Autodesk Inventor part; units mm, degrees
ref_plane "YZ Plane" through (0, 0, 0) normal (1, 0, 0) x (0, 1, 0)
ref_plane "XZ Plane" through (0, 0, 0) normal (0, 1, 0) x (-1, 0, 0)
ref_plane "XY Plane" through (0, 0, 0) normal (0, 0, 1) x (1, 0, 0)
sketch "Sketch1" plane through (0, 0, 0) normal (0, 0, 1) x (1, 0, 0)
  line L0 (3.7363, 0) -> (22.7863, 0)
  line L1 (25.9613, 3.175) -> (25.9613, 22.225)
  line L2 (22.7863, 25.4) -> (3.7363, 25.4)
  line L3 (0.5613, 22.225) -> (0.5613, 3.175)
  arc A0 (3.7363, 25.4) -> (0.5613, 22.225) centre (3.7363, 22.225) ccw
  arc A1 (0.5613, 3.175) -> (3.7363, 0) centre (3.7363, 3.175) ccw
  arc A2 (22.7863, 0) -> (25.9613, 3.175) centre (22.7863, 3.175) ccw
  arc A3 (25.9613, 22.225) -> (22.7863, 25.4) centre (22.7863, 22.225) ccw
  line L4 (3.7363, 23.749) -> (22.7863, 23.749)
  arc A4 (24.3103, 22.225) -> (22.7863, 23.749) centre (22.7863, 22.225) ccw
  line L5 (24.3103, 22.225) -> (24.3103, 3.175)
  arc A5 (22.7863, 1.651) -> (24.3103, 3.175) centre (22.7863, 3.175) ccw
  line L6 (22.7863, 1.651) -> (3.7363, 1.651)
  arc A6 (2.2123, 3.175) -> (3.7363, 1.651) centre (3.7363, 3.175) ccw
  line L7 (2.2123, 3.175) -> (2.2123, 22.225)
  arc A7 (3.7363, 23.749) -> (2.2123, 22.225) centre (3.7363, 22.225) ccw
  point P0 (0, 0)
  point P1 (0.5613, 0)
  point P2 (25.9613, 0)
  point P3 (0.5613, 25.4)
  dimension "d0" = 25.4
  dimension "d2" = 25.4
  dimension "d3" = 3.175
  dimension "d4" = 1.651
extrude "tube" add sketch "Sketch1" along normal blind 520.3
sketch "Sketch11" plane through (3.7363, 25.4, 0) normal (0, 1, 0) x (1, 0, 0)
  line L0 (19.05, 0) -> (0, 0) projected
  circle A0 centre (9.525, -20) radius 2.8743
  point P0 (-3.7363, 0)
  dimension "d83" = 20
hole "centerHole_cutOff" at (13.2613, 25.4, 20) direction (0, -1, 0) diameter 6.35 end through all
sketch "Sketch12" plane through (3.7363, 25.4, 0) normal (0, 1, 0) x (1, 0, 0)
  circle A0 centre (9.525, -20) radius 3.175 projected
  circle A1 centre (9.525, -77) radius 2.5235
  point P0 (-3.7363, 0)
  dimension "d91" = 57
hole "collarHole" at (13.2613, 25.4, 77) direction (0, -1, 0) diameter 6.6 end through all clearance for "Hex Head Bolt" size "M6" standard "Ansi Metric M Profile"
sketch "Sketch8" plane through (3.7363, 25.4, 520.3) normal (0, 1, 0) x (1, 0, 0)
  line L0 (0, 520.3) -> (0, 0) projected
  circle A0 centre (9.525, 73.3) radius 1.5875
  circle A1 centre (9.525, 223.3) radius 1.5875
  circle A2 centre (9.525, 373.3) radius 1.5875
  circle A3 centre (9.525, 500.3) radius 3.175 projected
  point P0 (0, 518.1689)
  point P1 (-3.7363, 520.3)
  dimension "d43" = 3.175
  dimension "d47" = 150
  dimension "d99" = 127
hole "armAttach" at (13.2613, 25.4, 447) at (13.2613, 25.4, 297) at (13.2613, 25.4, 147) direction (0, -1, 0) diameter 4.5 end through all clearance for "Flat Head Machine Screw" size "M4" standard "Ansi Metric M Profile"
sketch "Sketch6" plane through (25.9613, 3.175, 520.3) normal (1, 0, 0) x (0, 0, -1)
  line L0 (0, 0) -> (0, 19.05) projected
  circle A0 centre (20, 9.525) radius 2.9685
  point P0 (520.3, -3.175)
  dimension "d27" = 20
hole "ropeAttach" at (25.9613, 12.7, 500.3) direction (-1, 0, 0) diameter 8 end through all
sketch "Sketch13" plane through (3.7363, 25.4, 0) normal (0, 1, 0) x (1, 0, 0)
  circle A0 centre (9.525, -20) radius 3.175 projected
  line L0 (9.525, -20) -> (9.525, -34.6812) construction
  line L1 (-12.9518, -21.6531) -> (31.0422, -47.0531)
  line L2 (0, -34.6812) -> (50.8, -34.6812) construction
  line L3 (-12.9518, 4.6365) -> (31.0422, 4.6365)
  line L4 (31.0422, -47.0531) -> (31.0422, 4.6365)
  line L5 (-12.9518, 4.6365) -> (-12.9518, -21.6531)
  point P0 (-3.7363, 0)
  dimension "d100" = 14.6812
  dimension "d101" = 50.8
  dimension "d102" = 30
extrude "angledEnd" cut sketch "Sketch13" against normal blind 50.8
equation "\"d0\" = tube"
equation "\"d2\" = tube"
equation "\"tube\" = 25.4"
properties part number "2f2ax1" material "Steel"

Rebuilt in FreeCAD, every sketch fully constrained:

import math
import FreeCAD as App
import Part
import Sketcher

V = App.Vector
Q = App.Units.Quantity


def add_polygon(sketch, points):
    """Adds a closed chain of lines whose ends are joined by coincident constraints."""
    first, n = sketch.GeometryCount, len(points)
    for a, b in zip(points, points[1:] + points[:1]):
        sketch.addGeometry(Part.LineSegment(App.Vector(*a, 0), App.Vector(*b, 0)), False)
    for i in range(n):
        sketch.addConstraint(Sketcher.Constraint("Coincident", first + i, 2, first + (i + 1) % n, 1))

doc = App.newDocument("Part")
body = doc.addObject("PartDesign::Body", "Body")

# Sketch on XY plane
sketch1 = doc.addObject("Sketcher::SketchObject", "Sketch")
body.addObject(sketch1)
sketch1.AttachmentSupport = (doc.XY_Plane, [""])
sketch1.MapMode = "FlatFace"
sketch1.addGeometry([
    Part.ArcOfCircle(Part.Circle(V(3.7363, 3.175, 0), V(0, 0, 1), 3.175), math.radians(180), math.radians(270)),  # 0
    Part.LineSegment(V(3.7363, 0, 0), V(22.7863, 0, 0)),  # 1
    Part.ArcOfCircle(Part.Circle(V(22.7863, 3.175, 0), V(0, 0, 1), 3.175), math.radians(-90), math.radians(0)),  # 2
    Part.LineSegment(V(25.9613, 3.175, 0), V(25.9613, 22.225, 0)),  # 3
    Part.ArcOfCircle(Part.Circle(V(22.7863, 22.225, 0), V(0, 0, 1), 3.175), math.radians(0), math.radians(90)),  # 4
    Part.LineSegment(V(22.7863, 25.4, 0), V(3.7363, 25.4, 0)),  # 5
    Part.ArcOfCircle(Part.Circle(V(3.7363, 22.225, 0), V(0, 0, 1), 3.175), math.radians(90), math.radians(180)),  # 6
    Part.LineSegment(V(0.5613, 22.225, 0), V(0.5613, 3.175, 0)),  # 7
    Part.ArcOfCircle(Part.Circle(V(3.7363, 22.225, 0), V(0, 0, 1), 1.524), math.radians(90), math.radians(180)),  # 8
    Part.LineSegment(V(3.7363, 23.749, 0), V(22.7863, 23.749, 0)),  # 9
    Part.ArcOfCircle(Part.Circle(V(22.7863, 22.225, 0), V(0, 0, 1), 1.524), math.radians(0), math.radians(90)),  # 10
    Part.LineSegment(V(24.3103, 22.225, 0), V(24.3103, 3.175, 0)),  # 11
    Part.ArcOfCircle(Part.Circle(V(22.7863, 3.175, 0), V(0, 0, 1), 1.524), math.radians(-90), math.radians(0)),  # 12
    Part.LineSegment(V(22.7863, 1.651, 0), V(3.7363, 1.651, 0)),  # 13
    Part.ArcOfCircle(Part.Circle(V(3.7363, 3.175, 0), V(0, 0, 1), 1.524), math.radians(180), math.radians(270)),  # 14
    Part.LineSegment(V(2.2123, 3.175, 0), V(2.2123, 22.225, 0)),  # 15
], False)
sketch1.addConstraint([
    Sketcher.Constraint("Tangent", 0, 2, 1, 1),
    Sketcher.Constraint("Tangent", 1, 2, 2, 1),
    Sketcher.Constraint("Tangent", 2, 2, 3, 1),
    Sketcher.Constraint("Tangent", 3, 2, 4, 1),
    Sketcher.Constraint("Tangent", 4, 2, 5, 1),
    Sketcher.Constraint("Tangent", 5, 2, 6, 1),
    Sketcher.Constraint("Tangent", 6, 2, 7, 1),
    Sketcher.Constraint("Tangent", 7, 2, 0, 1),
    Sketcher.Constraint("Tangent", 8, 1, 9, 1),
    Sketcher.Constraint("Tangent", 9, 2, 10, 2),
    Sketcher.Constraint("Tangent", 10, 1, 11, 1),
    Sketcher.Constraint("Tangent", 11, 2, 12, 2),
    Sketcher.Constraint("Tangent", 12, 1, 13, 1),
    Sketcher.Constraint("Tangent", 13, 2, 14, 2),
    Sketcher.Constraint("Tangent", 14, 1, 15, 1),
    Sketcher.Constraint("Tangent", 15, 2, 8, 2),
    Sketcher.Constraint("Horizontal", 1),
    Sketcher.Constraint("Vertical", 3),
    Sketcher.Constraint("Horizontal", 5),
    Sketcher.Constraint("Vertical", 7),
    Sketcher.Constraint("Horizontal", 9),
    Sketcher.Constraint("Vertical", 11),
    Sketcher.Constraint("Horizontal", 13),
    Sketcher.Constraint("Vertical", 15),
    Sketcher.Constraint("Coincident", 8, 3, 6, 3),
    Sketcher.Constraint("Coincident", 10, 3, 4, 3),
    Sketcher.Constraint("Coincident", 12, 3, 2, 3),
    Sketcher.Constraint("Equal", 0, 2),
    Sketcher.Constraint("Equal", 2, 4),
    Sketcher.Constraint("Equal", 4, 6),
    Sketcher.Constraint("Equal", 12, 14),
    Sketcher.Constraint("PointOnObject", 0, 2, -1),
    Sketcher.Constraint("Equal", 13, 3),
    Sketcher.Constraint("DistanceY", -1, 1, 4, 2, Q("1 in")),
    Sketcher.Constraint("Radius", 0, Q("0.125 in")),
    Sketcher.Constraint("Radius", 8, Q("0.06 in")),
    Sketcher.Constraint("DistanceX", -1, 1, 0, 3, Q("0.1471 in")),
])
pad1 = doc.addObject("PartDesign::Pad", "Pad")
body.addObject(pad1)
pad1.Profile = sketch1
pad1.Length = 520.3

# Sketch on XZ plane
sketch2 = doc.addObject("Sketcher::SketchObject", "Sketch001")
body.addObject(sketch2)
sketch2.AttachmentSupport = (doc.XZ_Plane, [""])
sketch2.MapMode = "FlatFace"
sketch2.AttachmentOffset = App.Placement(V(0, 0, -1 * 25.4), App.Rotation())
sketch2.addGeometry(Part.Circle(V(13.2613, 20, 0), V(0, 0, 1), 3.175), False)
sketch2.addConstraint([
    Sketcher.Constraint("Diameter", 0, Q("0.25 in")),
    Sketcher.Constraint("DistanceX", -1, 1, 0, 3, Q("0.5221 in")),
    Sketcher.Constraint("DistanceY", -1, 1, 0, 3, Q("0.7874 in")),
])
doc.recompute()
hole = doc.addObject("PartDesign::Hole", "Hole")
body.addObject(hole)
hole.Profile = sketch2
hole.ThreadType = "None"
hole.Diameter = Q("0.25 in")
hole.DepthType = "ThroughAll"
hole.Reversed = True

# Sketch on XZ plane
sketch3 = doc.addObject("Sketcher::SketchObject", "Sketch002")
body.addObject(sketch3)
sketch3.AttachmentSupport = (doc.XZ_Plane, [""])
sketch3.MapMode = "FlatFace"
sketch3.AttachmentOffset = App.Placement(V(0, 0, -1 * 25.4), App.Rotation())
sketch3.addGeometry(Part.Circle(V(13.2613, 77, 0), V(0, 0, 1), 3.3), False)
sketch3.addConstraint([
    Sketcher.Constraint("Diameter", 0, 6.6),
    Sketcher.Constraint("DistanceX", -1, 1, 0, 3, Q("0.5221 in")),
    Sketcher.Constraint("DistanceY", -1, 1, 0, 3, Q("3.0315 in")),
])
doc.recompute()
hole2 = doc.addObject("PartDesign::Hole", "Hole001")
body.addObject(hole2)
hole2.Profile = sketch3
hole2.ThreadType = "None"
hole2.Diameter = 6.6
hole2.DepthType = "ThroughAll"
hole2.Reversed = True

# Sketch on XZ plane
sketch4 = doc.addObject("Sketcher::SketchObject", "Sketch003")
body.addObject(sketch4)
sketch4.AttachmentSupport = (doc.XZ_Plane, [""])
sketch4.MapMode = "FlatFace"
sketch4.AttachmentOffset = App.Placement(V(0, 0, -1 * 25.4), App.Rotation())
sketch4.addGeometry([
    Part.Circle(V(13.2613, 447, 0), V(0, 0, 1), 2.25),
    Part.Circle(V(13.2613, 297, 0), V(0, 0, 1), 2.25),
    Part.Circle(V(13.2613, 147, 0), V(0, 0, 1), 2.25),
], False)
sketch4.addConstraint([
    Sketcher.Constraint("Equal", 0, 1),
    Sketcher.Constraint("Equal", 1, 2),
    Sketcher.Constraint("Vertical", 0, 3, 1, 3),
    Sketcher.Constraint("Vertical", 1, 3, 2, 3),
    Sketcher.Constraint("Diameter", 0, 4.5),
    Sketcher.Constraint("DistanceX", -1, 1, 0, 3, Q("0.5221 in")),
    Sketcher.Constraint("DistanceY", -1, 1, 2, 3, Q("5.7874 in")),
    Sketcher.Constraint("DistanceY", 1, 3, 0, 3, Q("5.9055 in")),
    Sketcher.Constraint("DistanceY", 2, 3, 1, 3, Q("5.9055 in")),
])
doc.recompute()
hole3 = doc.addObject("PartDesign::Hole", "Hole002")
body.addObject(hole3)
hole3.Profile = sketch4
hole3.ThreadType = "None"
hole3.Diameter = 4.5
hole3.DepthType = "ThroughAll"
hole3.Reversed = True

# Sketch on YZ plane
sketch5 = doc.addObject("Sketcher::SketchObject", "Sketch004")
body.addObject(sketch5)
sketch5.AttachmentSupport = (doc.YZ_Plane, [""])
sketch5.MapMode = "FlatFace"
sketch5.AttachmentOffset = App.Placement(V(0, 0, 1.0220984 * 25.4), App.Rotation())
sketch5.addGeometry(Part.Circle(V(12.7, 500.3, 0), V(0, 0, 1), 4), False)
sketch5.addConstraint([
    Sketcher.Constraint("DistanceX", -1, 1, 0, 3, Q("0.5 in")),
    Sketcher.Constraint("Diameter", 0, 8.0),
    Sketcher.Constraint("DistanceY", -1, 1, 0, 3, 500.3),
])
doc.recompute()
hole4 = doc.addObject("PartDesign::Hole", "Hole003")
body.addObject(hole4)
hole4.Profile = sketch5
hole4.ThreadType = "None"
hole4.Diameter = 8
hole4.DepthType = "ThroughAll"

# Sketch on XZ plane
sketch6 = doc.addObject("Sketcher::SketchObject", "Sketch005")
body.addObject(sketch6)
sketch6.AttachmentSupport = (doc.XZ_Plane, [""])
sketch6.MapMode = "FlatFace"
sketch6.AttachmentOffset = App.Placement(V(0, 0, -1 * 25.4), App.Rotation())
add_polygon(sketch6, [(-9.2155, -4.6365), (-9.2155, 21.6531), (34.7785, 47.0531), (34.7785, -4.6365)])  # lines 0-3
sketch6.addGeometry(Part.Circle(V(13.2613, 20, 0), V(0, 0, 1), 3.175), False)  # 4
sketch6.addConstraint([
    Sketcher.Constraint("Vertical", 0),
    Sketcher.Constraint("Vertical", 2),
    Sketcher.Constraint("Horizontal", 3),
    Sketcher.Constraint("Distance", 1, Q("2 in")),
    Sketcher.Constraint("Angle", 1, Q("30 deg")),
    Sketcher.Constraint("Diameter", 4, Q("0.25 in")),
    Sketcher.Constraint("DistanceY", 0, 1, 0, 2, 26.2896),
    Sketcher.Constraint("DistanceX", -1, 1, 4, 3, Q("0.5221 in")),
    Sketcher.Constraint("DistanceY", -1, 1, 4, 3, Q("0.7874 in")),
    Sketcher.Constraint("DistanceX", 0, 2, -1, 1, 9.2155),
    Sketcher.Constraint("DistanceY", -1, 1, 0, 2, 21.653),
])
pocket1 = doc.addObject("PartDesign::Pocket", "Pocket")
body.addObject(pocket1)
pocket1.Profile = sketch6
pocket1.Length = Q("2 in")
pocket1.Reversed = True

doc.recompute()
